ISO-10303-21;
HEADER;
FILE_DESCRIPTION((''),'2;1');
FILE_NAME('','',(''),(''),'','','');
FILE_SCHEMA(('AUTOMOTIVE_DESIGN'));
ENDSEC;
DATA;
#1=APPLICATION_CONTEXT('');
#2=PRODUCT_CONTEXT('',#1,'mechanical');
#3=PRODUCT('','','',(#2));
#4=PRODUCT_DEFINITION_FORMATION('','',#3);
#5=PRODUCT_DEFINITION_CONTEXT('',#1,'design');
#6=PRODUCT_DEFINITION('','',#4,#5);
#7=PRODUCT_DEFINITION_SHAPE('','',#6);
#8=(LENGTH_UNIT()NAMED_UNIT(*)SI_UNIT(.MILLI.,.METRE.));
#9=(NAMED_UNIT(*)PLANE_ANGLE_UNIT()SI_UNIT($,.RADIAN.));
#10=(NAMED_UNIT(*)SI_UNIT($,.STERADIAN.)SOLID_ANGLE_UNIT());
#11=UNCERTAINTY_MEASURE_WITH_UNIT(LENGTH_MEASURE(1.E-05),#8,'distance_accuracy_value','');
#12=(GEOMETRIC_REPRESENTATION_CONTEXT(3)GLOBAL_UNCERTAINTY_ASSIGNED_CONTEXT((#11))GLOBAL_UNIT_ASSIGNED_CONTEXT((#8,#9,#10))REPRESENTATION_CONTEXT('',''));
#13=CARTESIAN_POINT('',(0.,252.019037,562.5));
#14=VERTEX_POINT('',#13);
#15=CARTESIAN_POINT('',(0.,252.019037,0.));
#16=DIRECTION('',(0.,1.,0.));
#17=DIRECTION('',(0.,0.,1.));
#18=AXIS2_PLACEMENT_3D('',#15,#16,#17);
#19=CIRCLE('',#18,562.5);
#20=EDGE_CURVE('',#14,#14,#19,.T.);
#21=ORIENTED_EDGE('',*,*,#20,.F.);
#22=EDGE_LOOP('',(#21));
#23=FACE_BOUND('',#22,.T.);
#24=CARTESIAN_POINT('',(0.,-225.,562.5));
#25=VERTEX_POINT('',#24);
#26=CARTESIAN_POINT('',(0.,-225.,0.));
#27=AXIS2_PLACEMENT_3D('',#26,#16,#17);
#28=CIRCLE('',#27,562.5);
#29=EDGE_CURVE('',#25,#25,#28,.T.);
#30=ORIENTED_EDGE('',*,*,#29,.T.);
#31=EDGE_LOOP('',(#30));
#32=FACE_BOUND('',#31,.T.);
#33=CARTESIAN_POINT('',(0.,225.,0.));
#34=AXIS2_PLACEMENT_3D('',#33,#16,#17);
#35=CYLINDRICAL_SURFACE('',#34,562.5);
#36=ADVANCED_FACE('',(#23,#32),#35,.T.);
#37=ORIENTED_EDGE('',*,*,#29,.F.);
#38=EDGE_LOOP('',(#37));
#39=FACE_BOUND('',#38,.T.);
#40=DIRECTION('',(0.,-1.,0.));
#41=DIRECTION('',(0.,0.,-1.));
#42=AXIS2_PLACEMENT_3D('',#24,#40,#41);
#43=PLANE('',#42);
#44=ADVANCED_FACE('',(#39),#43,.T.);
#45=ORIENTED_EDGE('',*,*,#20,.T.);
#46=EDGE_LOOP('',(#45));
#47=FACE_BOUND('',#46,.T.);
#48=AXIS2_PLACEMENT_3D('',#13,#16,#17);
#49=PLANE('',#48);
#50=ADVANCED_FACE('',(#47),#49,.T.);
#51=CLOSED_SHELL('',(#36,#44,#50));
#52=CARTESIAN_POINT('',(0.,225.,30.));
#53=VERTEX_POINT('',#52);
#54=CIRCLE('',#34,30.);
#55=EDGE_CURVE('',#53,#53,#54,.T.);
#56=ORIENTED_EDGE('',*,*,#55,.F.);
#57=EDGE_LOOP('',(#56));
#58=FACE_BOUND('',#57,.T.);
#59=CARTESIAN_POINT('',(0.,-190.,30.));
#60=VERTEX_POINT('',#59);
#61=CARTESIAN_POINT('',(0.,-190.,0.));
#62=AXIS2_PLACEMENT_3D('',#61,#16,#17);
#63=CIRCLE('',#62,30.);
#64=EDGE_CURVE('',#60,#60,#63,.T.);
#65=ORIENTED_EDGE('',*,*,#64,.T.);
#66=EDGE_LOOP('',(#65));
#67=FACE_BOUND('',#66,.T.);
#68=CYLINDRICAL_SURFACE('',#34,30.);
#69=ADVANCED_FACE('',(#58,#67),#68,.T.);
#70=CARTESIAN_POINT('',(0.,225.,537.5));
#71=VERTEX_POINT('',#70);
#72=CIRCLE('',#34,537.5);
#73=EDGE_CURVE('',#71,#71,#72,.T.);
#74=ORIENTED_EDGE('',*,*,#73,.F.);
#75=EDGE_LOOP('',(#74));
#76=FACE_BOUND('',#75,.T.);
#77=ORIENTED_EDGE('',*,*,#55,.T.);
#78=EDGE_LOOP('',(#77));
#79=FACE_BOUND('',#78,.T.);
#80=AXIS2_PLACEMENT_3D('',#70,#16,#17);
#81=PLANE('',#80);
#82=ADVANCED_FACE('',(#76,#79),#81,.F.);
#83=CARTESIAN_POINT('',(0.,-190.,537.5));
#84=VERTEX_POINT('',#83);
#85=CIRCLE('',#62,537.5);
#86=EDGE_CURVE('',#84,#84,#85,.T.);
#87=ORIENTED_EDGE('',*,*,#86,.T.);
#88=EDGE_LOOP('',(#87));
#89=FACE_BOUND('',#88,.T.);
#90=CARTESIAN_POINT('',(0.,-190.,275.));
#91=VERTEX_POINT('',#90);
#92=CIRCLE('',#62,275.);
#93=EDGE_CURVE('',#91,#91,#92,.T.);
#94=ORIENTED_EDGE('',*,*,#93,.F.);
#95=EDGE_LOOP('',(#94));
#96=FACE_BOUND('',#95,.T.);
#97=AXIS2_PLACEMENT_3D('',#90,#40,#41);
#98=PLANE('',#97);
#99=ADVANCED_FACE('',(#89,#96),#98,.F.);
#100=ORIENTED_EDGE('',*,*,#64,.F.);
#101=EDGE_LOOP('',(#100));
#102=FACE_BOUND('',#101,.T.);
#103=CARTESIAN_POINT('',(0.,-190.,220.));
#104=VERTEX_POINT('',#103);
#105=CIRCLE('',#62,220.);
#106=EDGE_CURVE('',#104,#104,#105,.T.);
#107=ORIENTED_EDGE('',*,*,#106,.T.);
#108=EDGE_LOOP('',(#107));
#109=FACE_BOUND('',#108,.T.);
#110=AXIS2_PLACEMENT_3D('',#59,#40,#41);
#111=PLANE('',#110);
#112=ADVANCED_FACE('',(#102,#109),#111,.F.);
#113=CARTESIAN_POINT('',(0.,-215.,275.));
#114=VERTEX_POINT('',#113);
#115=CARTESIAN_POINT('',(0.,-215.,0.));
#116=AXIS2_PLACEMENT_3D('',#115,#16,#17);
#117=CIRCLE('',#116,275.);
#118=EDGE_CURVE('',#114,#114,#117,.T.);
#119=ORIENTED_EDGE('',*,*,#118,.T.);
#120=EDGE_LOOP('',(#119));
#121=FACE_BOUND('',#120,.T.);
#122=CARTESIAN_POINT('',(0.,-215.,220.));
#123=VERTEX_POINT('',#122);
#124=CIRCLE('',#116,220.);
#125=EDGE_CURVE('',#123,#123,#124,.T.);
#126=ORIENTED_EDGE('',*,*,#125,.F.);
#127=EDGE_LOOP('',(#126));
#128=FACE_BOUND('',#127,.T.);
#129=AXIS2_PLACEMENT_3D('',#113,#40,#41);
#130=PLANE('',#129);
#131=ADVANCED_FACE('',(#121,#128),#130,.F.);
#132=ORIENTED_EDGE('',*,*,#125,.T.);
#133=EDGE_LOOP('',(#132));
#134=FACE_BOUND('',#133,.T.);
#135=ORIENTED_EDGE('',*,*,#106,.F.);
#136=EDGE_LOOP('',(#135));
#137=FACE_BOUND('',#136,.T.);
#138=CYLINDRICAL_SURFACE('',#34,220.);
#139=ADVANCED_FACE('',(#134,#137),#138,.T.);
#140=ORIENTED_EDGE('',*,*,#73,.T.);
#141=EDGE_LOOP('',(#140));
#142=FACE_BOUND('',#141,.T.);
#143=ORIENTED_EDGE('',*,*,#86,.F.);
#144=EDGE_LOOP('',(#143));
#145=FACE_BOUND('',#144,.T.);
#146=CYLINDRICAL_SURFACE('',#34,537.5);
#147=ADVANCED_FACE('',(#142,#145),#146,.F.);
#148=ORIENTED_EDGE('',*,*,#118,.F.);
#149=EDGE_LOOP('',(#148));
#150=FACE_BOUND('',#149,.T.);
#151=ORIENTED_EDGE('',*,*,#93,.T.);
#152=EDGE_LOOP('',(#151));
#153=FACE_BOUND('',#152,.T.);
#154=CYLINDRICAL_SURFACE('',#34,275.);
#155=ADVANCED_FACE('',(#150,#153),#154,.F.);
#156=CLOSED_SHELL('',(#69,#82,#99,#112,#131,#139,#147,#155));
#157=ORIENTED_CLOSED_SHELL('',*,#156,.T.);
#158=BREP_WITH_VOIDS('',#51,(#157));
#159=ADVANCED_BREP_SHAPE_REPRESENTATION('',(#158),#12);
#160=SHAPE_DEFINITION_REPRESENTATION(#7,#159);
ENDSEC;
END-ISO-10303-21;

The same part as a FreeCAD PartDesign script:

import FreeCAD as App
import Part
import Sketcher
from FreeCAD import Vector

doc = App.newDocument("Part")
body = doc.addObject("PartDesign::Body", "Body")

# Sketch on YZ plane
sketch1 = body.newObject("Sketcher::SketchObject", "Sketch")
sketch1.AttachmentSupport = (doc.getObject("YZ_Plane"), [""])
sketch1.MapMode = "FlatFace"
sketch1.addGeometry([
    Part.LineSegment(Vector(-225, 562.5, 0), Vector(-225, 0, 0)),  # 0
    Part.LineSegment(Vector(-225, 0, 0), Vector(252.019037, 0, 0)),  # 1
    Part.LineSegment(Vector(252.019037, 0, 0), Vector(252.019037, 562.5, 0)),  # 2
    Part.LineSegment(Vector(252.019037, 562.5, 0), Vector(-225, 562.5, 0)),  # 3
    Part.LineSegment(Vector(225, 30, 0), Vector(-190, 30, 0)),  # 4
    Part.LineSegment(Vector(-190, 30, 0), Vector(-190, 220, 0)),  # 5
    Part.LineSegment(Vector(-190, 220, 0), Vector(-215, 220, 0)),  # 6
    Part.LineSegment(Vector(-215, 220, 0), Vector(-215, 275, 0)),  # 7
    Part.LineSegment(Vector(-215, 275, 0), Vector(-190, 275, 0)),  # 8
    Part.LineSegment(Vector(-190, 275, 0), Vector(-190, 537.5, 0)),  # 9
    Part.LineSegment(Vector(-190, 537.5, 0), Vector(225, 537.5, 0)),  # 10
    Part.LineSegment(Vector(225, 537.5, 0), Vector(225, 30, 0)),  # 11
], False)
sketch1.addConstraint([
    Sketcher.Constraint("Coincident", 0, 2, 1, 1),
    Sketcher.Constraint("Coincident", 1, 2, 2, 1),
    Sketcher.Constraint("Coincident", 2, 2, 3, 1),
    Sketcher.Constraint("Coincident", 3, 2, 0, 1),
    Sketcher.Constraint("Coincident", 4, 2, 5, 1),
    Sketcher.Constraint("Coincident", 5, 2, 6, 1),
    Sketcher.Constraint("Coincident", 6, 2, 7, 1),
    Sketcher.Constraint("Coincident", 7, 2, 8, 1),
    Sketcher.Constraint("Coincident", 8, 2, 9, 1),
    Sketcher.Constraint("Coincident", 9, 2, 10, 1),
    Sketcher.Constraint("Coincident", 10, 2, 11, 1),
    Sketcher.Constraint("Coincident", 11, 2, 4, 1),
    Sketcher.Constraint("Vertical", 0),
    Sketcher.Constraint("Horizontal", 1),
    Sketcher.Constraint("Vertical", 2),
    Sketcher.Constraint("Horizontal", 3),
    Sketcher.Constraint("Horizontal", 4),
    Sketcher.Constraint("Vertical", 5),
    Sketcher.Constraint("Horizontal", 6),
    Sketcher.Constraint("Vertical", 7),
    Sketcher.Constraint("Horizontal", 8),
    Sketcher.Constraint("Vertical", 9),
    Sketcher.Constraint("Horizontal", 10),
    Sketcher.Constraint("Vertical", 11),
    Sketcher.Constraint("PointOnObject", 0, 2, -1),
    Sketcher.Constraint("Vertical", 5, 2, 8, 2),
    Sketcher.Constraint("DistanceX", 4, 2, 4, 1, 415.0),
    Sketcher.Constraint("DistanceX", 6, 2, 6, 1, 25.0),
    Sketcher.Constraint("DistanceY", 5, 1, 5, 2, 190.0),
    Sketcher.Constraint("DistanceY", 7, 1, 7, 2, 55.0),
    Sketcher.Constraint("DistanceY", 0, 2, 0, 1, 562.5),
    Sketcher.Constraint("DistanceY", 9, 1, 9, 2, 262.5),
    Sketcher.Constraint("DistanceX", 0, 2, -1, 1, 225.0),
    Sketcher.Constraint("DistanceX", 4, 2, -1, 1, 190.0),
    Sketcher.Constraint("DistanceY", -1, 1, 4, 2, 30.0),
    Sketcher.Constraint("DistanceX", 1, 1, 1, 2, 477.019037),
])
revolution = body.newObject("PartDesign::Revolution", "Revolution")
revolution.Profile = sketch1
revolution.ReferenceAxis = (sketch1, ["H_Axis"])
revolution.Angle = 360

doc.recompute()
